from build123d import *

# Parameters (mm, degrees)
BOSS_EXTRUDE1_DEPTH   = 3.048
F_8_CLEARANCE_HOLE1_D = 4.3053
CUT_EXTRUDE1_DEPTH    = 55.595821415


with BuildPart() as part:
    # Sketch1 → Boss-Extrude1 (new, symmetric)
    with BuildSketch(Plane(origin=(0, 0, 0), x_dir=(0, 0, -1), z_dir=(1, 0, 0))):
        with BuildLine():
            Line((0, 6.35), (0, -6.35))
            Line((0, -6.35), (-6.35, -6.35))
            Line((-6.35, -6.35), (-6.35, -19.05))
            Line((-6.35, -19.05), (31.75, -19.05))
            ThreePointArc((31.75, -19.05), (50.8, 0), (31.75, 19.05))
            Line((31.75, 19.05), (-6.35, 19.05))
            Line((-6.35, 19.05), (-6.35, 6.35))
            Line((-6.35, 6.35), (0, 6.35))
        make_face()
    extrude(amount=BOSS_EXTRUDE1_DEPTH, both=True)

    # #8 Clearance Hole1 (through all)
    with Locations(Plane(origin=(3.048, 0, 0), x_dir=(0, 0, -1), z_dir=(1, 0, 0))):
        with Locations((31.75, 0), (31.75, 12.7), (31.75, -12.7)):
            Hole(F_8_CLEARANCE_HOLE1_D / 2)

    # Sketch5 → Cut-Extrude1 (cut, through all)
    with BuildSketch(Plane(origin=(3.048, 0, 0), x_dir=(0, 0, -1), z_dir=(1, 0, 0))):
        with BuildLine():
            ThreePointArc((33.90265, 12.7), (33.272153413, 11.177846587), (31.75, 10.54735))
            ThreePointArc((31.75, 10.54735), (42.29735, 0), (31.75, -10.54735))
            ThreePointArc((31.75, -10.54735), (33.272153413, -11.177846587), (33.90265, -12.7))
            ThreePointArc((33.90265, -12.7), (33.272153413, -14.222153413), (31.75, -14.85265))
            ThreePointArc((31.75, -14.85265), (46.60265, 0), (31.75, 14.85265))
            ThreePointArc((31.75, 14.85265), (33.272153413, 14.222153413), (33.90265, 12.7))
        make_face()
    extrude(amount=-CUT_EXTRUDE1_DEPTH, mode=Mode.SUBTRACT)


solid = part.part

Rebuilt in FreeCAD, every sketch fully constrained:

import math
import FreeCAD as App
import Part
import Sketcher
from FreeCAD import Vector
Q = App.Units.Quantity

doc = App.newDocument("Part")
body = doc.addObject("PartDesign::Body", "Body")

# Sketch on YZ plane
sketch1 = body.newObject("Sketcher::SketchObject", "Sketch")
sketch1.AttachmentSupport = (doc.getObject("YZ_Plane"), [""])
sketch1.MapMode = "FlatFace"
sketch1.addGeometry(Part.LineSegment(Vector(6, 0, 0), Vector(-6, 0, 0)), False)
sketch1.addGeometry(Part.LineSegment(Vector(-6, 0, 0), Vector(-6, 6, 0)), False)
sketch1.addGeometry(Part.LineSegment(Vector(-6, 6, 0), Vector(-19, 6, 0)), False)
sketch1.addGeometry(Part.LineSegment(Vector(-19, 6, 0), Vector(-19, -32, 0)), False)
sketch1.addGeometry(Part.ArcOfCircle(Part.Circle(Vector(0, -32, 0), Vector(0, 0, 1), 19), math.radians(180), math.radians(360)), False)
sketch1.addGeometry(Part.LineSegment(Vector(19, -32, 0), Vector(19, 6, 0)), False)
sketch1.addGeometry(Part.LineSegment(Vector(19, 6, 0), Vector(6, 6, 0)), False)
sketch1.addGeometry(Part.LineSegment(Vector(6, 6, 0), Vector(6, 0, 0)), False)
sketch1.addConstraint(Sketcher.Constraint("Coincident", 0, 2, 1, 1))
sketch1.addConstraint(Sketcher.Constraint("Coincident", 1, 2, 2, 1))
sketch1.addConstraint(Sketcher.Constraint("Coincident", 2, 2, 3, 1))
sketch1.addConstraint(Sketcher.Constraint("Tangent", 3, 2, 4, 1))
sketch1.addConstraint(Sketcher.Constraint("Tangent", 4, 2, 5, 1))
sketch1.addConstraint(Sketcher.Constraint("Coincident", 5, 2, 6, 1))
sketch1.addConstraint(Sketcher.Constraint("Coincident", 6, 2, 7, 1))
sketch1.addConstraint(Sketcher.Constraint("Coincident", 7, 2, 0, 1))
sketch1.addConstraint(Sketcher.Constraint("Horizontal", 0))
sketch1.addConstraint(Sketcher.Constraint("Vertical", 1))
sketch1.addConstraint(Sketcher.Constraint("Horizontal", 2))
sketch1.addConstraint(Sketcher.Constraint("Vertical", 3))
sketch1.addConstraint(Sketcher.Constraint("Vertical", 5))
sketch1.addConstraint(Sketcher.Constraint("Horizontal", 6))
sketch1.addConstraint(Sketcher.Constraint("Vertical", 7))
sketch1.addConstraint(Sketcher.Constraint("Symmetric", 0, 2, 7, 2, -1, 1))
sketch1.addConstraint(Sketcher.Constraint("Symmetric", 2, 2, 5, 2, -2))
sketch1.addConstraint(Sketcher.Constraint("Equal", 0, 2))
sketch1.addConstraint(Sketcher.Constraint("Radius", 4, Q("0.75 in")))
sketch1.addConstraint(Sketcher.Constraint("DistanceY", 3, 2, 3, 1, Q("1.5 in")))
sketch1.addConstraint(Sketcher.Constraint("DistanceY", 1, 1, 1, 2, Q("0.25 in")))
pad1 = body.newObject("PartDesign::Pad", "Pad")
pad1.Profile = sketch1
pad1.Length = Q("0.24 in")
pad1.Midplane = True

# Sketch on YZ plane
sketch2 = body.newObject("Sketcher::SketchObject", "Sketch001")
sketch2.AttachmentSupport = (doc.getObject("YZ_Plane"), [""])
sketch2.MapMode = "FlatFace"
sketch2.AttachmentOffset = App.Placement(Vector(0, 0, 0.12 * 25.4), App.Rotation())
sketch2.addGeometry(Part.Circle(Vector(0, -31.8, 0), Vector(0, 0, 1), 2.2), False)
sketch2.addGeometry(Part.Circle(Vector(12.7, -31.8, 0), Vector(0, 0, 1), 2.2), False)
sketch2.addGeometry(Part.Circle(Vector(-12.7, -31.8, 0), Vector(0, 0, 1), 2.2), False)
sketch2.addConstraint(Sketcher.Constraint("Equal", 0, 1))
sketch2.addConstraint(Sketcher.Constraint("Equal", 1, 2))
sketch2.addConstraint(Sketcher.Constraint("Symmetric", 1, 3, 2, 3, -2))
sketch2.addConstraint(Sketcher.Constraint("PointOnObject", 0, 3, -2))
sketch2.addConstraint(Sketcher.Constraint("Horizontal", 0, 3, 1, 3))
sketch2.addConstraint(Sketcher.Constraint("DistanceX", 2, 3, 1, 3, Q("1 in")))
sketch2.addConstraint(Sketcher.Constraint("Diameter", 0, Q("0.1695 in")))
sketch2.addConstraint(Sketcher.Constraint("DistanceY", 0, 3, -1, 1, Q("1.25 in")))
doc.recompute()
hole = body.newObject("PartDesign::Hole", "Hole")
hole.Profile = sketch2
hole.ThreadType = "None"
hole.Diameter = Q("0.1695 in")
hole.DepthType = "ThroughAll"

# Sketch on YZ plane
sketch3 = body.newObject("Sketcher::SketchObject", "Sketch002")
sketch3.AttachmentSupport = (doc.getObject("YZ_Plane"), [""])
sketch3.MapMode = "FlatFace"
sketch3.AttachmentOffset = App.Placement(Vector(0, 0, 0.12 * 25.4), App.Rotation())
sketch3.addGeometry(Part.ArcOfCircle(Part.Circle(Vector(12.7, -31.8, 0), Vector(0, 0, 1), 2.2), math.radians(180), math.radians(270)), False)
sketch3.addGeometry(Part.ArcOfCircle(Part.Circle(Vector(0, -31.8, 0), Vector(0, 0, 1), 10.5), math.radians(180), math.radians(360)), False)
sketch3.addGeometry(Part.ArcOfCircle(Part.Circle(Vector(-12.7, -31.8, 0), Vector(0, 0, 1), 2.2), math.radians(-90), math.radians(0)), False)
sketch3.addGeometry(Part.ArcOfCircle(Part.Circle(Vector(-12.7, -31.8, 0), Vector(0, 0, 1), 2.2), math.radians(180), math.radians(270)), False)
sketch3.addGeometry(Part.ArcOfCircle(Part.Circle(Vector(0, -31.8, 0), Vector(0, 0, 1), 14.9), math.radians(180), math.radians(360)), False)
sketch3.addGeometry(Part.ArcOfCircle(Part.Circle(Vector(12.7, -31.8, 0), Vector(0, 0, 1), 2.2), math.radians(-90), math.radians(0)), False)
sketch3.addConstraint(Sketcher.Constraint("Tangent", 0, 1, 1, 2))
sketch3.addConstraint(Sketcher.Constraint("Tangent", 1, 1, 2, 2))
sketch3.addConstraint(Sketcher.Constraint("Tangent", 2, 1, 3, 2))
sketch3.addConstraint(Sketcher.Constraint("Tangent", 3, 1, 4, 1))
sketch3.addConstraint(Sketcher.Constraint("Tangent", 4, 2, 5, 2))
sketch3.addConstraint(Sketcher.Constraint("Tangent", 5, 1, 0, 2))
sketch3.addConstraint(Sketcher.Constraint("Coincident", 4, 3, 1, 3))
sketch3.addConstraint(Sketcher.Constraint("Equal", 0, 2))
sketch3.addConstraint(Sketcher.Constraint("Equal", 2, 3))
sketch3.addConstraint(Sketcher.Constraint("Symmetric", 0, 3, 2, 3, -2))
sketch3.addConstraint(Sketcher.Constraint("Horizontal", 0, 3, 1, 3))
sketch3.addConstraint(Sketcher.Constraint("Vertical", 3, 3, 2, 1))
sketch3.addConstraint(Sketcher.Constraint("Vertical", 0, 3, 5, 1))
sketch3.addConstraint(Sketcher.Constraint("DistanceX", 2, 3, 0, 3, Q("1 in")))
sketch3.addConstraint(Sketcher.Constraint("DistanceY", 0, 3, -1, 1, Q("1.25 in")))
sketch3.addConstraint(Sketcher.Constraint("Radius", 0, Q("2.15265 mm")))
pocket1 = body.newObject("PartDesign::Pocket", "Pocket")
pocket1.Profile = sketch3
pocket1.Type = "ThroughAll"

doc.recompute()
